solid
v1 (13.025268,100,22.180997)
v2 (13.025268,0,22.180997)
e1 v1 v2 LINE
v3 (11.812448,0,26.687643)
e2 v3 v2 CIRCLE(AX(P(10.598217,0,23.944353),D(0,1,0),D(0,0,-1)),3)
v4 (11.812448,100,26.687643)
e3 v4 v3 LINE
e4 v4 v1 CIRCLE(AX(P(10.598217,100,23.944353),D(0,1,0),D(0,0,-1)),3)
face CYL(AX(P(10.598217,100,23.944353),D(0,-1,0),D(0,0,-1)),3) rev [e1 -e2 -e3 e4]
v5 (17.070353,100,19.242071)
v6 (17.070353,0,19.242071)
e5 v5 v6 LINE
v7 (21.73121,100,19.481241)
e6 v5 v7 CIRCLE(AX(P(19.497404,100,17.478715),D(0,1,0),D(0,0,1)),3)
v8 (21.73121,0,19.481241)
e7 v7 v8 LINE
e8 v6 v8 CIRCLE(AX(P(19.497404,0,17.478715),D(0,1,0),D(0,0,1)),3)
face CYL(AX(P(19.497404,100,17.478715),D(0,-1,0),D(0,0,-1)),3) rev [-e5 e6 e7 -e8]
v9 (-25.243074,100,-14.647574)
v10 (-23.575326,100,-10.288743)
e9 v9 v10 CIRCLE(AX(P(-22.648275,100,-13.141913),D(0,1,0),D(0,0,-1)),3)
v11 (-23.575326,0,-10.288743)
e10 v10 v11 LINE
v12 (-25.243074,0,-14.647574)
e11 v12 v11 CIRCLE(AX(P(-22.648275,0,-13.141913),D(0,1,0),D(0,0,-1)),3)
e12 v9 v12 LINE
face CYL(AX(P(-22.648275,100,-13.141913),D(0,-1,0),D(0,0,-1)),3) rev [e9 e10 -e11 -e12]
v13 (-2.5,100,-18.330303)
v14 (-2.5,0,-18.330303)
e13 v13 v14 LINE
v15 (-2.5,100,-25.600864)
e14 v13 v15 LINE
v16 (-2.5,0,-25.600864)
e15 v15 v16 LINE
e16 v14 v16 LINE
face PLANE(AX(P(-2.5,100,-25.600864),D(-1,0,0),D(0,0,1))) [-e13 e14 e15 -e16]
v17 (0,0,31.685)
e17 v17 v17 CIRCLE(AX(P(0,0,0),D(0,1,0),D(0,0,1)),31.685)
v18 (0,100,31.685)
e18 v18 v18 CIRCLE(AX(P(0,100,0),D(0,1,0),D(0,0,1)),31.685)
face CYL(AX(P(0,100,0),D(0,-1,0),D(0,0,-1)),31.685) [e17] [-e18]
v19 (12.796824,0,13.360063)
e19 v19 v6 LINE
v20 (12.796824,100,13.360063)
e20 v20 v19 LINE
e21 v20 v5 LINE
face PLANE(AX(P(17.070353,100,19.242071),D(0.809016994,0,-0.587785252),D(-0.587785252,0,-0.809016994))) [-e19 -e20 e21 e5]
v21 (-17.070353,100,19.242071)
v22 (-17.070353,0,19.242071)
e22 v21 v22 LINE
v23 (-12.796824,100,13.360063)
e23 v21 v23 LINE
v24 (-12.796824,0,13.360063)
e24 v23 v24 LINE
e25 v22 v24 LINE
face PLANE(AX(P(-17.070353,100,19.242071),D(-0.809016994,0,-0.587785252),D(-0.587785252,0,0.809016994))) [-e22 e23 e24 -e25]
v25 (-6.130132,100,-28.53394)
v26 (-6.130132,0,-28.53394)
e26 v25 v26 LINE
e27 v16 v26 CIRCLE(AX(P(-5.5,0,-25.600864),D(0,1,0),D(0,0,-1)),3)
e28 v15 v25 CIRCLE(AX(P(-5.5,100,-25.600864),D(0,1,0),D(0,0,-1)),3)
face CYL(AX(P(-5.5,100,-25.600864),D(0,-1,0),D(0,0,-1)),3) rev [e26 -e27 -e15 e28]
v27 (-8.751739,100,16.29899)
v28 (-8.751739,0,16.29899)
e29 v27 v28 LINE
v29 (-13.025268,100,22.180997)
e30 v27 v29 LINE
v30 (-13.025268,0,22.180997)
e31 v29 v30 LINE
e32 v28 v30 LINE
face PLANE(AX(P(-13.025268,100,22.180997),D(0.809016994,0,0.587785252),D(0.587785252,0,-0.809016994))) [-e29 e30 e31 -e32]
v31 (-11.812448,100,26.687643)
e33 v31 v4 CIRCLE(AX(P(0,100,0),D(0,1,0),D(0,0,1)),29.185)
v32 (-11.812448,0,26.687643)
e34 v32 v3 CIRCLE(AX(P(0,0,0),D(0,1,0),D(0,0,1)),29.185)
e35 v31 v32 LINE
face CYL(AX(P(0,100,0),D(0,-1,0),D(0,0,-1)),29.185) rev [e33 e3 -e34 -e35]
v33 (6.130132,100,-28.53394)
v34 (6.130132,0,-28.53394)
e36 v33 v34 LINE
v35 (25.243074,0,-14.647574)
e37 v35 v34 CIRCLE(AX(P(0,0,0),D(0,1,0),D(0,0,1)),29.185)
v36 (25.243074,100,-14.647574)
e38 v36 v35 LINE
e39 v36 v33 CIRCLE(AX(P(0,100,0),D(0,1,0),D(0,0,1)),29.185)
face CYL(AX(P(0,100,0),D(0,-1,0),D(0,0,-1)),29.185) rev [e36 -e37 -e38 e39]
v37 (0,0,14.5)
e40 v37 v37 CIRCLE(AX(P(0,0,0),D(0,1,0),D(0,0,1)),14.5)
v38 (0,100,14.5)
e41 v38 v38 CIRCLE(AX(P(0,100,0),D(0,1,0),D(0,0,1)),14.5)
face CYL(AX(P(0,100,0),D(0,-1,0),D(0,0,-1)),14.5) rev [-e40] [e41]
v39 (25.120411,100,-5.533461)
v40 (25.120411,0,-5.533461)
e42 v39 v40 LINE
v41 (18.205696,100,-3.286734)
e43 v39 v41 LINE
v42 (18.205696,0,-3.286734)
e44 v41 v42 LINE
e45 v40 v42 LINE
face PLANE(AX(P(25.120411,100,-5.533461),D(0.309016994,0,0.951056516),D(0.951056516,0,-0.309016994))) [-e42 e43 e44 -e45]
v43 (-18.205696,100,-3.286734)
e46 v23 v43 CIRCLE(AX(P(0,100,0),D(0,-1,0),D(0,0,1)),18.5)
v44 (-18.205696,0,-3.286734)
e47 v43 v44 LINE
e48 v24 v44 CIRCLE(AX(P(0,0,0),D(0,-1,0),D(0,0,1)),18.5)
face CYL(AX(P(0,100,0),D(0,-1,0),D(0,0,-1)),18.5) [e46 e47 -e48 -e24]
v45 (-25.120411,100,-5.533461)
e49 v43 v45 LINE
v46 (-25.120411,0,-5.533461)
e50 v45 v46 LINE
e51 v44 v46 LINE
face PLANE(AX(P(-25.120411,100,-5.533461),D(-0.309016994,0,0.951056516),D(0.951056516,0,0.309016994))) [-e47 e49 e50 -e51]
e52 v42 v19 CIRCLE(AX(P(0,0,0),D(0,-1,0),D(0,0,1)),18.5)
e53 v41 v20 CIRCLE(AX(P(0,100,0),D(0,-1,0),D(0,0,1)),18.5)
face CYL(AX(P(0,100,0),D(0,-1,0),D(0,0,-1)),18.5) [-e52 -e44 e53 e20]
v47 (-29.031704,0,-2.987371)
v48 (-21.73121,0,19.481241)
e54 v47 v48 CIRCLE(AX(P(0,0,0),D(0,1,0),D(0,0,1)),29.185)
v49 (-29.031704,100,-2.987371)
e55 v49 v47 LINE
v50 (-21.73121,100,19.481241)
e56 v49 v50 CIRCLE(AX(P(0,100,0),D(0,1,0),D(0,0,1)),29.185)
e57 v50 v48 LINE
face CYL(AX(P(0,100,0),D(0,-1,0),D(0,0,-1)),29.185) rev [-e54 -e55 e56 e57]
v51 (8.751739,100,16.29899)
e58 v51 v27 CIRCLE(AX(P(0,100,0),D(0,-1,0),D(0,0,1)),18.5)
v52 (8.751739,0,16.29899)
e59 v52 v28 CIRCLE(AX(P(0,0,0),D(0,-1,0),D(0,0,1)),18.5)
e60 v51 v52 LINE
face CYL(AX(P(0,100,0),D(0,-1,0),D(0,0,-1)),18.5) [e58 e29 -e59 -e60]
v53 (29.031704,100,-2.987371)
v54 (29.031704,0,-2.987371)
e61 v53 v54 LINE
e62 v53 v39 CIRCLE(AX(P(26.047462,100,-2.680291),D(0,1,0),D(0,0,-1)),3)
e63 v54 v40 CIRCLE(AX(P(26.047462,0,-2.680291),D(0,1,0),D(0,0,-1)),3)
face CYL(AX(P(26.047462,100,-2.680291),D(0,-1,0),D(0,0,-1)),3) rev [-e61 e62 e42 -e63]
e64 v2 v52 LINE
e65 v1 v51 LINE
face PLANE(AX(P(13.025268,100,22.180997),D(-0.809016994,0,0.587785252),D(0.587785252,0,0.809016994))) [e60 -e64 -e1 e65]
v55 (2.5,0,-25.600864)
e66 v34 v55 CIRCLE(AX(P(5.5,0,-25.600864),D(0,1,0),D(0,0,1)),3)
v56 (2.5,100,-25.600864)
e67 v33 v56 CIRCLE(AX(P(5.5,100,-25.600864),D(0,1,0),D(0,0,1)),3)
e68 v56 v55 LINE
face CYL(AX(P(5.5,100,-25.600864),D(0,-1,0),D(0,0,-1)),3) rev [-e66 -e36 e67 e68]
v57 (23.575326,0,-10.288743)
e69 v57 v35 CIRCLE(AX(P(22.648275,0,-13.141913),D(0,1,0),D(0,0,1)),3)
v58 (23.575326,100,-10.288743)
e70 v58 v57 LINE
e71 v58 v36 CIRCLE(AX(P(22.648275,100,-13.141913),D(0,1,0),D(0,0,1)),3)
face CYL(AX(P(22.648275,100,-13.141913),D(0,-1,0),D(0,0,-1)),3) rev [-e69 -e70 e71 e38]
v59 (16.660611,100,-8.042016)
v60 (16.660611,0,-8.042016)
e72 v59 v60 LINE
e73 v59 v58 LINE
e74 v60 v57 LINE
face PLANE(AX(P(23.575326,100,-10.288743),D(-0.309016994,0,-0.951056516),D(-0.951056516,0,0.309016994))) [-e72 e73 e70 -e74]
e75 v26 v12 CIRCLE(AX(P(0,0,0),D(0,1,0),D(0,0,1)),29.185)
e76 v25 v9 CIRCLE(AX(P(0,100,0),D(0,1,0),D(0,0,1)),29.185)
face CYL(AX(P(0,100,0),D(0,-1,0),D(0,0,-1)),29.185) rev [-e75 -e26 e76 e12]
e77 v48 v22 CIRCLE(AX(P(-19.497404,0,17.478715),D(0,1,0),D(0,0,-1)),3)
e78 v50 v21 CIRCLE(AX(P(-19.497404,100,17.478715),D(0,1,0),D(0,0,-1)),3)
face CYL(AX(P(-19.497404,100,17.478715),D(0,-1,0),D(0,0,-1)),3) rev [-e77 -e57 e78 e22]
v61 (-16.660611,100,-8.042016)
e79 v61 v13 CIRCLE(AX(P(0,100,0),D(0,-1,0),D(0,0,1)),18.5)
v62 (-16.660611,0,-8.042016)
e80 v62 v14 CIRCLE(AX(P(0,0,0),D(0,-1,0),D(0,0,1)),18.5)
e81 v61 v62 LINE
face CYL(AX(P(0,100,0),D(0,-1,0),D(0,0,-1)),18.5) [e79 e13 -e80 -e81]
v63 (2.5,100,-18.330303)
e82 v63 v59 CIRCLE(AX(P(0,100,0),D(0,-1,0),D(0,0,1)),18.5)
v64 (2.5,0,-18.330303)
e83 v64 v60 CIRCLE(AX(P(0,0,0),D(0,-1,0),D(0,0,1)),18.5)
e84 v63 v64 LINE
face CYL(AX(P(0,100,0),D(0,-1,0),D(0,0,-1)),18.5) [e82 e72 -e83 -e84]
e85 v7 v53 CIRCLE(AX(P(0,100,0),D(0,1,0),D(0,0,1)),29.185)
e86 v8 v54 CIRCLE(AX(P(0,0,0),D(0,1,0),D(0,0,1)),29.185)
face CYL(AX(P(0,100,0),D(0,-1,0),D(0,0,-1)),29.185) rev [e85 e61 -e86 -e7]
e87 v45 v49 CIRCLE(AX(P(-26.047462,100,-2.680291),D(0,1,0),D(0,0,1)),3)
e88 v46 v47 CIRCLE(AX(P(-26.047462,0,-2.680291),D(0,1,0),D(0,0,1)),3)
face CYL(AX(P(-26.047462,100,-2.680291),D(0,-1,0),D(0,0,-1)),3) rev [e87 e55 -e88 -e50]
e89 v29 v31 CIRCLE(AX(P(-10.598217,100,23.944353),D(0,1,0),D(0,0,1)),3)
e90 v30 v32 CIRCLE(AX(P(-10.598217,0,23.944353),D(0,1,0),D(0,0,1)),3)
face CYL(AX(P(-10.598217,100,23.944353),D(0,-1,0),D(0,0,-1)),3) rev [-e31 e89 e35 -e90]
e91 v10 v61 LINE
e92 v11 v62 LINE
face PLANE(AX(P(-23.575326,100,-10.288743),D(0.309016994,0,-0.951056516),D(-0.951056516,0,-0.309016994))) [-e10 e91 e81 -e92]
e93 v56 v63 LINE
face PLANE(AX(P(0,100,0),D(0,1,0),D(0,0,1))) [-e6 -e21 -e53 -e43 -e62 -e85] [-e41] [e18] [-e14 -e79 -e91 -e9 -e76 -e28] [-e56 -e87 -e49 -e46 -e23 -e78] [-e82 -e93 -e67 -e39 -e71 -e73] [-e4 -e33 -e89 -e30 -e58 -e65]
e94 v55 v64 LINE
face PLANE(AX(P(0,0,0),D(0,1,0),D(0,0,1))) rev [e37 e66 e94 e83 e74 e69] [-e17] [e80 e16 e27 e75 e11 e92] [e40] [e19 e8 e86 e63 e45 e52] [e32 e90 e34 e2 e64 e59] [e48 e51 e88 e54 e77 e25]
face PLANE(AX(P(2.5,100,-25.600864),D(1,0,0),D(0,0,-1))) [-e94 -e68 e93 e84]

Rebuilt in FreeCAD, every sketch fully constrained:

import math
import FreeCAD as App
import Part
import Sketcher
Q = App.Units.Quantity

doc = App.newDocument("Part")
body = doc.addObject("PartDesign::Body", "Body")

# Sketch on XZ plane
sketch1 = doc.addObject("Sketcher::SketchObject", "Sketch")
body.addObject(sketch1)
sketch1.AttachmentSupport = (doc.XZ_Plane, [""])
sketch1.MapMode = "FlatFace"
sketch1.addGeometry([
    Part.Circle(App.Vector(0, 0, 0), App.Vector(0, 0, 1), 31.7),  # 0
    Part.ArcOfCircle(Part.Circle(App.Vector(-5.5, -25.6, 0), App.Vector(0, 0, 1), 3), math.radians(-102), math.radians(0)),  # 1
    Part.LineSegment(App.Vector(-2.5, -25.6, 0), App.Vector(-2.5, -18.3, 0)),  # 2
    Part.ArcOfCircle(Part.Circle(App.Vector(0, 0, 0), App.Vector(0, 0, 1), 18.5), math.radians(-154), math.radians(-98)),  # 3
    Part.LineSegment(App.Vector(-16.7, -8, 0), App.Vector(-23.6, -10.3, 0)),  # 4
    Part.ArcOfCircle(Part.Circle(App.Vector(-22.6, -13.1, 0), App.Vector(0, 0, 1), 3), math.radians(108), math.radians(210)),  # 5
    Part.ArcOfCircle(Part.Circle(App.Vector(0, 0, 0), App.Vector(0, 0, 1), 29.2), math.radians(-150), math.radians(-102)),  # 6
    Part.Circle(App.Vector(0, 0, 0), App.Vector(0, 0, 1), 14.5),  # 7
    Part.LineSegment(App.Vector(-12.8, 13.4, 0), App.Vector(-17.1, 19.2, 0)),  # 8
    Part.ArcOfCircle(Part.Circle(App.Vector(-19.5, 17.5, 0), App.Vector(0, 0, 1), 3), math.radians(36), math.radians(138)),  # 9
    Part.ArcOfCircle(Part.Circle(App.Vector(0, 0, 0), App.Vector(0, 0, 1), 29.2), math.radians(138), math.radians(186)),  # 10
    Part.ArcOfCircle(Part.Circle(App.Vector(-26, -2.7, 0), App.Vector(0, 0, 1), 3), math.radians(-174), math.radians(-72)),  # 11
    Part.LineSegment(App.Vector(-25.1, -5.5, 0), App.Vector(-18.2, -3.3, 0)),  # 12
    Part.ArcOfCircle(Part.Circle(App.Vector(0, 0, 0), App.Vector(0, 0, 1), 18.5), math.radians(134), math.radians(190)),  # 13
    Part.ArcOfCircle(Part.Circle(App.Vector(22.6, -13.1, 0), App.Vector(0, 0, 1), 3), math.radians(-30), math.radians(72)),  # 14
    Part.LineSegment(App.Vector(23.6, -10.3, 0), App.Vector(16.7, -8, 0)),  # 15
    Part.ArcOfCircle(Part.Circle(App.Vector(0, 0, 0), App.Vector(0, 0, 1), 18.5), math.radians(-82), math.radians(-26)),  # 16
    Part.LineSegment(App.Vector(2.5, -18.3, 0), App.Vector(2.5, -25.6, 0)),  # 17
    Part.ArcOfCircle(Part.Circle(App.Vector(5.5, -25.6, 0), App.Vector(0, 0, 1), 3), math.radians(180), math.radians(282)),  # 18
    Part.ArcOfCircle(Part.Circle(App.Vector(0, 0, 0), App.Vector(0, 0, 1), 29.2), math.radians(-78), math.radians(-30)),  # 19
    Part.LineSegment(App.Vector(8.8, 16.3, 0), App.Vector(13, 22.2, 0)),  # 20
    Part.ArcOfCircle(Part.Circle(App.Vector(10.6, 23.9, 0), App.Vector(0, 0, 1), 3), math.radians(-36), math.radians(66)),  # 21
    Part.ArcOfCircle(Part.Circle(App.Vector(0, 0, 0), App.Vector(0, 0, 1), 29.2), math.radians(66), math.radians(114)),  # 22
    Part.ArcOfCircle(Part.Circle(App.Vector(-10.6, 23.9, 0), App.Vector(0, 0, 1), 3), math.radians(114), math.radians(216)),  # 23
    Part.LineSegment(App.Vector(-13, 22.2, 0), App.Vector(-8.8, 16.3, 0)),  # 24
    Part.ArcOfCircle(Part.Circle(App.Vector(0, 0, 0), App.Vector(0, 0, 1), 18.5), math.radians(62), math.radians(118)),  # 25
    Part.LineSegment(App.Vector(18.2, -3.3, 0), App.Vector(25.1, -5.5, 0)),  # 26
    Part.ArcOfCircle(Part.Circle(App.Vector(26, -2.7, 0), App.Vector(0, 0, 1), 3), math.radians(-108), math.radians(-6)),  # 27
    Part.ArcOfCircle(Part.Circle(App.Vector(0, 0, 0), App.Vector(0, 0, 1), 29.2), math.radians(-6), math.radians(42)),  # 28
    Part.ArcOfCircle(Part.Circle(App.Vector(19.5, 17.5, 0), App.Vector(0, 0, 1), 3), math.radians(42), math.radians(144)),  # 29
    Part.LineSegment(App.Vector(17.1, 19.2, 0), App.Vector(12.8, 13.4, 0)),  # 30
    Part.ArcOfCircle(Part.Circle(App.Vector(0, 0, 0), App.Vector(0, 0, 1), 18.5), math.radians(-10), math.radians(46)),  # 31
], False)
sketch1.addConstraint([
    Sketcher.Constraint("Tangent", 1, 2, 2, 1),
    Sketcher.Constraint("Coincident", 2, 2, 3, 2),
    Sketcher.Constraint("Coincident", 3, 1, 4, 1),
    Sketcher.Constraint("Tangent", 4, 2, 5, 1),
    Sketcher.Constraint("Tangent", 5, 2, 6, 1),
    Sketcher.Constraint("Tangent", 6, 2, 1, 1),
    Sketcher.Constraint("Tangent", 8, 2, 9, 1),
    Sketcher.Constraint("Tangent", 9, 2, 10, 1),
    Sketcher.Constraint("Tangent", 10, 2, 11, 1),
    Sketcher.Constraint("Tangent", 11, 2, 12, 1),
    Sketcher.Constraint("Coincident", 12, 2, 13, 2),
    Sketcher.Constraint("Coincident", 13, 1, 8, 1),
    Sketcher.Constraint("Tangent", 14, 2, 15, 1),
    Sketcher.Constraint("Coincident", 15, 2, 16, 2),
    Sketcher.Constraint("Coincident", 16, 1, 17, 1),
    Sketcher.Constraint("Tangent", 17, 2, 18, 1),
    Sketcher.Constraint("Tangent", 18, 2, 19, 1),
    Sketcher.Constraint("Tangent", 19, 2, 14, 1),
    Sketcher.Constraint("Tangent", 20, 2, 21, 1),
    Sketcher.Constraint("Tangent", 21, 2, 22, 1),
    Sketcher.Constraint("Tangent", 22, 2, 23, 1),
    Sketcher.Constraint("Tangent", 23, 2, 24, 1),
    Sketcher.Constraint("Coincident", 24, 2, 25, 2),
    Sketcher.Constraint("Coincident", 25, 1, 20, 1),
    Sketcher.Constraint("Tangent", 26, 2, 27, 1),
    Sketcher.Constraint("Tangent", 27, 2, 28, 1),
    Sketcher.Constraint("Tangent", 28, 2, 29, 1),
    Sketcher.Constraint("Tangent", 29, 2, 30, 1),
    Sketcher.Constraint("Coincident", 30, 2, 31, 2),
    Sketcher.Constraint("Coincident", 31, 1, 26, 1),
    Sketcher.Constraint("Vertical", 2),
    Sketcher.Constraint("Vertical", 17),
    Sketcher.Constraint("Coincident", 0, 3, -1, 1),
    Sketcher.Constraint("Coincident", 3, 3, -1, 1),
    Sketcher.Constraint("Coincident", 6, 3, -1, 1),
    Sketcher.Constraint("Coincident", 7, 3, -1, 1),
    Sketcher.Constraint("Coincident", 10, 3, -1, 1),
    Sketcher.Constraint("Coincident", 13, 3, -1, 1),
    Sketcher.Constraint("Coincident", 16, 3, -1, 1),
    Sketcher.Constraint("Coincident", 19, 3, -1, 1),
    Sketcher.Constraint("Coincident", 22, 3, -1, 1),
    Sketcher.Constraint("Coincident", 25, 3, -1, 1),
    Sketcher.Constraint("Coincident", 28, 3, -1, 1),
    Sketcher.Constraint("Coincident", 31, 3, -1, 1),
    Sketcher.Constraint("Equal", 1, 5),
    Sketcher.Constraint("Equal", 5, 9),
    Sketcher.Constraint("Equal", 6, 10),
    Sketcher.Constraint("Equal", 9, 11),
    Sketcher.Constraint("Equal", 3, 13),
    Sketcher.Constraint("Equal", 11, 14),
    Sketcher.Constraint("Equal", 13, 16),
    Sketcher.Constraint("Equal", 14, 18),
    Sketcher.Constraint("Equal", 10, 19),
    Sketcher.Constraint("Equal", 18, 21),
    Sketcher.Constraint("Equal", 19, 22),
    Sketcher.Constraint("Equal", 21, 23),
    Sketcher.Constraint("Equal", 16, 25),
    Sketcher.Constraint("Equal", 23, 27),
    Sketcher.Constraint("Equal", 22, 28),
    Sketcher.Constraint("Equal", 27, 29),
    Sketcher.Constraint("Equal", 25, 31),
    Sketcher.Constraint("Symmetric", 4, 2, 14, 2, -2),
    Sketcher.Constraint("Symmetric", 20, 2, 23, 2, -2),
    Sketcher.Constraint("Symmetric", 11, 2, 26, 2, -2),
    Sketcher.Constraint("Symmetric", 8, 2, 29, 2, -2),
    Sketcher.Constraint("Parallel", 4, 12),
    Sketcher.Constraint("Parallel", 8, 24),
    Sketcher.Constraint("Horizontal", 1, 3, 18, 3),
    Sketcher.Constraint("Equal", 4, 8),
    Sketcher.Constraint("Equal", 8, 12),
    Sketcher.Constraint("Equal", 15, 20),
    Sketcher.Constraint("Diameter", 7, 29.0),
    Sketcher.Constraint("Radius", 1, 3.0),
    Sketcher.Constraint("Radius", 3, 18.5),
    Sketcher.Constraint("Diameter", 0, 63.37),
    Sketcher.Constraint("Angle", 4, Q("-162 deg")),
    Sketcher.Constraint("Angle", 8, Q("126 deg")),
    Sketcher.Constraint("Radius", 6, 29.185),
    Sketcher.Constraint("DistanceX", 1, 3, 18, 3, 11.0),
    Sketcher.Constraint("DistanceX", 5, 2, 5, 3, 2.594799),
])
pad1 = doc.addObject("PartDesign::Pad", "Pad")
body.addObject(pad1)
pad1.Profile = sketch1
pad1.Length = 100
pad1.Reversed = True

doc.recompute()
